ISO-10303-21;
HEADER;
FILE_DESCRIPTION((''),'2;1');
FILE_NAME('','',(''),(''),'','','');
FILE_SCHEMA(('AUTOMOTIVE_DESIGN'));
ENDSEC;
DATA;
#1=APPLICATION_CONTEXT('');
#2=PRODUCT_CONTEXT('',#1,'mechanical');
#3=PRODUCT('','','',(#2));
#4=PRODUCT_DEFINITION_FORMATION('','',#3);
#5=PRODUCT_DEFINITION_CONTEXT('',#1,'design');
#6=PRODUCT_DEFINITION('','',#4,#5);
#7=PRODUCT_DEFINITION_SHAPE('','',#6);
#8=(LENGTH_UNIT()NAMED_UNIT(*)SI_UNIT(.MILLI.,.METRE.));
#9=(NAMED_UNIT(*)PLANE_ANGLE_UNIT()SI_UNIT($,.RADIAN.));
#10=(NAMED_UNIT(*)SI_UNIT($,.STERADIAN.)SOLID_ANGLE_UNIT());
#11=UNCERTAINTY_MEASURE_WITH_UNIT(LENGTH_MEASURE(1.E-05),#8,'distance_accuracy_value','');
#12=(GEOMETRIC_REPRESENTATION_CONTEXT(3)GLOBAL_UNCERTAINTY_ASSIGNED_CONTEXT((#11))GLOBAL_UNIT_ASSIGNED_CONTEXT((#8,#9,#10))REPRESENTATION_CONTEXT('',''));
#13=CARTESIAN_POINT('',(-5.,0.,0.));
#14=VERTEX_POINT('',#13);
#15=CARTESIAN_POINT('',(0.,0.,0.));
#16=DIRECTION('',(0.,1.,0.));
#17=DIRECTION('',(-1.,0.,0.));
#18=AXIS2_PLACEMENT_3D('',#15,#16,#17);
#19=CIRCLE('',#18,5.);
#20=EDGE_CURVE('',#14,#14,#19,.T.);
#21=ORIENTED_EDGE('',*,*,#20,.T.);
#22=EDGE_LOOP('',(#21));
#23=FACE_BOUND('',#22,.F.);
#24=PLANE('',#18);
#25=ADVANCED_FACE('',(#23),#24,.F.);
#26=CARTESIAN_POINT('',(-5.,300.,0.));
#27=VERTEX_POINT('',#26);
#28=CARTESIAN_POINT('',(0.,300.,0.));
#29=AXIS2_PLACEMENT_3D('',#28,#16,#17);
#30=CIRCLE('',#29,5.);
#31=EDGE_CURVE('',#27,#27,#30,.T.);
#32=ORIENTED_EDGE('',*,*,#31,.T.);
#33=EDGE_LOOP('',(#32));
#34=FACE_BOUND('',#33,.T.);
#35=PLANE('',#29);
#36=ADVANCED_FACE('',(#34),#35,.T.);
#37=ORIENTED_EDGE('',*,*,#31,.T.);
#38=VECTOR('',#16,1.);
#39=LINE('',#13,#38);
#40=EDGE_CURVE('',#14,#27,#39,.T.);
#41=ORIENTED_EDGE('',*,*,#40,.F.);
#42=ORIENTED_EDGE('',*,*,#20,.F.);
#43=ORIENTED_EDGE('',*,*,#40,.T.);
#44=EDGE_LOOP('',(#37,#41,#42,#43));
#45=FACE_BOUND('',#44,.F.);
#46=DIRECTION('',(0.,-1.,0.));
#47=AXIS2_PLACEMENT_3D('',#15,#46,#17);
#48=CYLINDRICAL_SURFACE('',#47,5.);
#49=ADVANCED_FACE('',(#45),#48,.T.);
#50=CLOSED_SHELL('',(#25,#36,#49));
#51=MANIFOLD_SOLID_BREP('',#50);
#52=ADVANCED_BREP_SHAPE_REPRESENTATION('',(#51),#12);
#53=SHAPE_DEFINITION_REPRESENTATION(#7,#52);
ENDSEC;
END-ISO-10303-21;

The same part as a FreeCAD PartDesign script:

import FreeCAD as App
import Part
import Sketcher
from FreeCAD import Vector

doc = App.newDocument("Part")
body = doc.addObject("PartDesign::Body", "Body")

# Sketch on XZ plane
sketch1 = body.newObject("Sketcher::SketchObject", "Sketch")
sketch1.AttachmentSupport = (doc.getObject("XZ_Plane"), [""])
sketch1.MapMode = "FlatFace"
sketch1.addGeometry(Part.Circle(Vector(0, 0, 0), Vector(0, 0, 1), 5), False)
sketch1.addConstraint([
    Sketcher.Constraint("Coincident", 0, 3, -1, 1),
    Sketcher.Constraint("Diameter", 0, 10.0),
])
pad1 = body.newObject("PartDesign::Pad", "Pad")
pad1.Profile = sketch1
pad1.Length = 300
pad1.Reversed = True

doc.recompute()
